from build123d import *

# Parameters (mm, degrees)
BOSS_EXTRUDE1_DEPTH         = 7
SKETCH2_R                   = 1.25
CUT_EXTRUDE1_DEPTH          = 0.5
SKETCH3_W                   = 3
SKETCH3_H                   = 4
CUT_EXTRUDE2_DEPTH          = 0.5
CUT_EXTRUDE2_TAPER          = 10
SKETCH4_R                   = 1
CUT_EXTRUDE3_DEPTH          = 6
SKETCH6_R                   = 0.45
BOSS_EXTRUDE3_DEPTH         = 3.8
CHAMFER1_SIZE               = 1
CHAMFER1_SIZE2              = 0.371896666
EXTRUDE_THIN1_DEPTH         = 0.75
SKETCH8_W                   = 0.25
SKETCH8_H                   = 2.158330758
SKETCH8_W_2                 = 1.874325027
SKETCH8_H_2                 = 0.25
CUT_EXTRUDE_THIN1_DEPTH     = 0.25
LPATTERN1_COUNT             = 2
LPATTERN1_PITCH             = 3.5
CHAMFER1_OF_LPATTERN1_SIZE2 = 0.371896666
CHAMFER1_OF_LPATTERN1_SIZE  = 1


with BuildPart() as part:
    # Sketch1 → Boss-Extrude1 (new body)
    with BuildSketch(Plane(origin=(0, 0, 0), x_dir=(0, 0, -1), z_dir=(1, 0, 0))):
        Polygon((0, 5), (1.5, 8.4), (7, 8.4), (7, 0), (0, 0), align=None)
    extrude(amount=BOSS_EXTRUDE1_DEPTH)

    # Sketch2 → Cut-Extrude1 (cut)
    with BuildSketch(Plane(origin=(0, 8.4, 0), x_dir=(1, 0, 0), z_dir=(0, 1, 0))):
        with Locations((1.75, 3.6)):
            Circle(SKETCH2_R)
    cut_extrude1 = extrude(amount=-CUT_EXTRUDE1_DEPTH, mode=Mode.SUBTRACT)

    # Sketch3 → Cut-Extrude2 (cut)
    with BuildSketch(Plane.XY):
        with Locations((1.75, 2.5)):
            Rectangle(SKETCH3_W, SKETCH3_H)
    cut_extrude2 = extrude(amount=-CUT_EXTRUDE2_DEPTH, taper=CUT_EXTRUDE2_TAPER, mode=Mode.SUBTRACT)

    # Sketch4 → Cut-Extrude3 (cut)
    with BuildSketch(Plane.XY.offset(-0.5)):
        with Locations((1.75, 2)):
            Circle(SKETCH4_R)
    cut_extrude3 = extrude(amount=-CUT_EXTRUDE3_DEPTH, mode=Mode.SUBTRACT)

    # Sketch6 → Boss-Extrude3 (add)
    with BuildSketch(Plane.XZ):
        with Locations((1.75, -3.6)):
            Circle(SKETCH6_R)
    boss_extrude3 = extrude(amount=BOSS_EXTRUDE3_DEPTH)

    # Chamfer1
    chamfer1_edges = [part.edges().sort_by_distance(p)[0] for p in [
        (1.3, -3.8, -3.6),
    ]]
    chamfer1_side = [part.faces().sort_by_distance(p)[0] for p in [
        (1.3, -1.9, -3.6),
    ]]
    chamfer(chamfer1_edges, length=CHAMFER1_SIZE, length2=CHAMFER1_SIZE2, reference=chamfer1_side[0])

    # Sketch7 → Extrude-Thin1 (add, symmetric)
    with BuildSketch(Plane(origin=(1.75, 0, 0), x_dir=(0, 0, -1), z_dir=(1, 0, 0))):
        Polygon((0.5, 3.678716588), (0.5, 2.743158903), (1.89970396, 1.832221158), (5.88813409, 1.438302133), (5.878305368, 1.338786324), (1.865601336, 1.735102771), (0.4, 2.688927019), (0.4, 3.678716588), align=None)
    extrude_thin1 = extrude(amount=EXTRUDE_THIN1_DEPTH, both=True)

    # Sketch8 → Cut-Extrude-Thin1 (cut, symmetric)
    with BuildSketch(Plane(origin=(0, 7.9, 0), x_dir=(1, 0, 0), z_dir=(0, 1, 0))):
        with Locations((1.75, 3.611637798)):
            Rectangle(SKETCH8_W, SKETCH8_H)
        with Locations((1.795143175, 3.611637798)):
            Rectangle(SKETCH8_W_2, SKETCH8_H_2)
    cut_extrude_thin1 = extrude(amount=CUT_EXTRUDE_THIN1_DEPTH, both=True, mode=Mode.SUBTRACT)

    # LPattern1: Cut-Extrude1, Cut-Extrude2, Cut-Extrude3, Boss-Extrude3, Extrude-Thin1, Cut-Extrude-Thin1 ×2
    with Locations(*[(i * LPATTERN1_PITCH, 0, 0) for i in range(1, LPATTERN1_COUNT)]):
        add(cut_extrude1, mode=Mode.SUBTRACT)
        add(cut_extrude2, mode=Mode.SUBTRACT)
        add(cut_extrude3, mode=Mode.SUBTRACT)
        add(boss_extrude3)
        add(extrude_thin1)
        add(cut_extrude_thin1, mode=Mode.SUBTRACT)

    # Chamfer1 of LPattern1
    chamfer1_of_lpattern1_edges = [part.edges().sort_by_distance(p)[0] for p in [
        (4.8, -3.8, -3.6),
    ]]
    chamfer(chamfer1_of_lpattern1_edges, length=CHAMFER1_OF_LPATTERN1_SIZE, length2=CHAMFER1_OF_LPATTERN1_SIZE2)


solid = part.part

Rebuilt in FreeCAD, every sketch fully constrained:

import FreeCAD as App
import Part
import Sketcher
Q = App.Units.Quantity


def edges_at(feature, points):
    """Names of the edges that pass closest to the given points."""
    edges = feature.Shape.Edges
    near = lambda p: min(range(len(edges)), key=lambda i: edges[i].distToShape(Part.Vertex(*p))[0])
    return sorted({f"Edge{near(p) + 1}" for p in points})


def add_polygon(sketch, points):
    """Adds a closed chain of lines whose ends are joined by coincident constraints."""
    first, n = sketch.GeometryCount, len(points)
    for a, b in zip(points, points[1:] + points[:1]):
        sketch.addGeometry(Part.LineSegment(App.Vector(*a, 0), App.Vector(*b, 0)), False)
    for i in range(n):
        sketch.addConstraint(Sketcher.Constraint("Coincident", first + i, 2, first + (i + 1) % n, 1))

doc = App.newDocument("Part")
body = doc.addObject("PartDesign::Body", "Body")

sketch1 = body.newObject("Sketcher::SketchObject", "Sketch")
sketch1.AttachmentSupport = (doc.getObject("YZ_Plane"), [""])
sketch1.MapMode = "FlatFace"
add_polygon(sketch1, [(8.4, -1.5), (5, 0), (0, 0), (0, -7), (8.4, -7)])
sketch1.addConstraint(Sketcher.Constraint("Horizontal", 1))
sketch1.addConstraint(Sketcher.Constraint("Vertical", 2))
sketch1.addConstraint(Sketcher.Constraint("Horizontal", 3))
sketch1.addConstraint(Sketcher.Constraint("Vertical", 4))
sketch1.addConstraint(Sketcher.Constraint("Coincident", 1, 2, -1, 1))
sketch1.addConstraint(Sketcher.Constraint("DistanceX", 1, 2, 1, 1, Q("5 mm")))
sketch1.addConstraint(Sketcher.Constraint("DistanceY", 2, 2, 2, 1, Q("7 mm")))
sketch1.addConstraint(Sketcher.Constraint("DistanceX", 3, 1, 3, 2, Q("8.4 mm")))
sketch1.addConstraint(Sketcher.Constraint("DistanceY", 4, 1, 4, 2, Q("5.5 mm")))
pad1 = body.newObject("PartDesign::Pad", "Pad")
pad1.Profile = sketch1
pad1.Length = 7

sketch2 = body.newObject("Sketcher::SketchObject", "Sketch001")
sketch2.AttachmentSupport = (doc.getObject("XZ_Plane"), [""])
sketch2.MapMode = "FlatFace"
sketch2.AttachmentOffset = App.Placement(App.Vector(0, 0, -8.4), App.Rotation())
sketch2.addGeometry(Part.Circle(App.Vector(1.8, -3.6, 0), App.Vector(0, 0, 1), 1.2), False)
sketch2.addConstraint(Sketcher.Constraint("Diameter", 0, Q("2.5 mm")))
sketch2.addConstraint(Sketcher.Constraint("DistanceY", 0, 3, -1, 1, Q("3.6 mm")))
sketch2.addConstraint(Sketcher.Constraint("DistanceX", -1, 1, 0, 3, Q("1.75 mm")))
pocket1 = body.newObject("PartDesign::Pocket", "Pocket")
pocket1.Profile = sketch2
pocket1.Length = 0.5
pocket1.Reversed = True

sketch3 = body.newObject("Sketcher::SketchObject", "Sketch002")
sketch3.AttachmentSupport = (doc.getObject("XY_Plane"), [""])
sketch3.MapMode = "FlatFace"
add_polygon(sketch3, [(0.2, 4.5), (0.2, 0.5), (3.2, 0.5), (3.2, 4.5)])
sketch3.addConstraint(Sketcher.Constraint("Vertical", 0))
sketch3.addConstraint(Sketcher.Constraint("Horizontal", 1))
sketch3.addConstraint(Sketcher.Constraint("Vertical", 2))
sketch3.addConstraint(Sketcher.Constraint("Horizontal", 3))
sketch3.addConstraint(Sketcher.Constraint("DistanceX", 1, 1, 1, 2, Q("3 mm")))
sketch3.addConstraint(Sketcher.Constraint("DistanceY", 0, 2, 0, 1, Q("4 mm")))
sketch3.addConstraint(Sketcher.Constraint("DistanceY", -1, 1, 0, 2, Q("0.5 mm")))
sketch3.addConstraint(Sketcher.Constraint("DistanceX", -1, 1, 0, 2, Q("0.25 mm")))
pocket2 = body.newObject("PartDesign::Pocket", "Pocket001")
pocket2.Profile = sketch3
pocket2.Length = 0.5
pocket2.TaperAngle = -10

sketch4 = body.newObject("Sketcher::SketchObject", "Sketch003")
sketch4.AttachmentSupport = (doc.getObject("XY_Plane"), [""])
sketch4.MapMode = "FlatFace"
sketch4.AttachmentOffset = App.Placement(App.Vector(0, 0, -0.5), App.Rotation())
sketch4.addGeometry(Part.Circle(App.Vector(1.8, 2, 0), App.Vector(0, 0, 1), 1), False)
sketch4.addConstraint(Sketcher.Constraint("Diameter", 0, Q("2 mm")))
sketch4.addConstraint(Sketcher.Constraint("DistanceY", -1, 1, 0, 3, Q("2 mm")))
sketch4.addConstraint(Sketcher.Constraint("DistanceX", -1, 1, 0, 3, Q("1.75 mm")))
pocket3 = body.newObject("PartDesign::Pocket", "Pocket002")
pocket3.Profile = sketch4
pocket3.Length = 6

sketch5 = body.newObject("Sketcher::SketchObject", "Sketch004")
sketch5.AttachmentSupport = (doc.getObject("XZ_Plane"), [""])
sketch5.MapMode = "FlatFace"
sketch5.addGeometry(Part.Circle(App.Vector(1.75, -3.6, 0), App.Vector(0, 0, 1), 0.45), False)
sketch5.addConstraint(Sketcher.Constraint("Diameter", 0, Q("0.9 mm")))
sketch5.addConstraint(Sketcher.Constraint("DistanceY", 0, 3, -1, 1, Q("3.6 mm")))
sketch5.addConstraint(Sketcher.Constraint("DistanceX", -1, 1, 0, 3, Q("1.75 mm")))
pad2 = body.newObject("PartDesign::Pad", "Pad001")
pad2.Profile = sketch5
pad2.Length = 3.8
doc.recompute()

chamfer = body.newObject("PartDesign::Chamfer", "Chamfer")
chamfer.Base = (pad2, edges_at(pad2, [(1.3, -3.8, -3.6)]))
chamfer.ChamferType = "Two distances"
chamfer.Size = 1
chamfer.Size2 = 0.371897

sketch6 = body.newObject("Sketcher::SketchObject", "Sketch005")
sketch6.AttachmentSupport = (doc.getObject("YZ_Plane"), [""])
sketch6.MapMode = "FlatFace"
sketch6.AttachmentOffset = App.Placement(App.Vector(0, 0, 1.75), App.Rotation())
add_polygon(sketch6, [(2.74, -0.5), (3.68, -0.5), (3.68, -0.4), (2.69, -0.4), (1.74, -1.87), (1.34, -5.88), (1.44, -5.89), (1.83, -1.9)])
sketch6.addConstraint(Sketcher.Constraint("Horizontal", 0))
sketch6.addConstraint(Sketcher.Constraint("Vertical", 1))
sketch6.addConstraint(Sketcher.Constraint("Horizontal", 2))
sketch6.addConstraint(Sketcher.Constraint("Perpendicular", 4, 5))
sketch6.addConstraint(Sketcher.Constraint("Perpendicular", 5, 6))
sketch6.addConstraint(Sketcher.Constraint("Parallel", 3, 7))
sketch6.addConstraint(Sketcher.Constraint("DistanceY", 1, 1, 1, 2, Q("0.1 mm")))
sketch6.addConstraint(Sketcher.Constraint("Distance", 5, Q("0.1 mm")))
sketch6.addConstraint(Sketcher.Constraint("DistanceY", 0, 2, -1, 1, Q("0.5 mm")))
sketch6.addConstraint(Sketcher.Constraint("DistanceX", 2, 2, 2, 1, Q("0.98979 mm")))
sketch6.addConstraint(Sketcher.Constraint("DistanceY", 3, 2, -1, 1, Q("1.865601 mm")))
sketch6.addConstraint(Sketcher.Constraint("DistanceX", 5, 2, 3, 2, Q("0.296801 mm")))
sketch6.addConstraint(Sketcher.Constraint("DistanceX", 0, 1, 0, 2, Q("0.935558 mm")))
sketch6.addConstraint(Sketcher.Constraint("DistanceX", -1, 1, 6, 2, Q("1.832221 mm")))
sketch6.addConstraint(Sketcher.Constraint("DistanceX", -1, 1, 7, 2, Q("2.743159 mm")))
sketch6.addConstraint(Sketcher.Constraint("DistanceY", 5, 2, 6, 2, Q("3.98843 mm")))
pad3 = body.newObject("PartDesign::Pad", "Pad002")
pad3.Profile = sketch6
pad3.Length = 1.5
pad3.Midplane = True

sketch7 = body.newObject("Sketcher::SketchObject", "Sketch006")
sketch7.AttachmentSupport = (doc.getObject("XZ_Plane"), [""])
sketch7.MapMode = "FlatFace"
sketch7.AttachmentOffset = App.Placement(App.Vector(0, 0, -7.9), App.Rotation())
add_polygon(sketch7, [(1.62, -3.49), (1.62, -2.53), (1.88, -2.53), (1.88, -3.49), (2.73, -3.49), (2.73, -3.74), (1.88, -3.74), (1.88, -4.69), (1.62, -4.69), (1.62, -3.74), (0.86, -3.74), (0.86, -3.49)])
sketch7.addConstraint(Sketcher.Constraint("Vertical", 0))
sketch7.addConstraint(Sketcher.Constraint("Horizontal", 1))
sketch7.addConstraint(Sketcher.Constraint("Vertical", 2))
sketch7.addConstraint(Sketcher.Constraint("Horizontal", 3))
sketch7.addConstraint(Sketcher.Constraint("Vertical", 4))
sketch7.addConstraint(Sketcher.Constraint("Horizontal", 5))
sketch7.addConstraint(Sketcher.Constraint("Vertical", 6))
sketch7.addConstraint(Sketcher.Constraint("Horizontal", 7))
sketch7.addConstraint(Sketcher.Constraint("Vertical", 8))
sketch7.addConstraint(Sketcher.Constraint("Horizontal", 9))
sketch7.addConstraint(Sketcher.Constraint("Vertical", 10))
sketch7.addConstraint(Sketcher.Constraint("Horizontal", 11))
sketch7.addConstraint(Sketcher.Constraint("Horizontal", 5, 2, 8, 2))
sketch7.addConstraint(Sketcher.Constraint("Horizontal", 3, 2, 10, 2))
sketch7.addConstraint(Sketcher.Constraint("Vertical", 2, 2, 5, 2))
sketch7.addConstraint(Sketcher.Constraint("Vertical", 0, 2, 7, 2))
sketch7.addConstraint(Sketcher.Constraint("Equal", 7, 4))
sketch7.addConstraint(Sketcher.Constraint("Equal", 2, 6))
sketch7.addConstraint(Sketcher.Constraint("DistanceX", 1, 1, 1, 2, Q("0.25 mm")))
sketch7.addConstraint(Sketcher.Constraint("DistanceX", -1, 1, 0, 2, Q("1.625 mm")))
sketch7.addConstraint(Sketcher.Constraint("DistanceX", 9, 2, 9, 1, Q("0.767019 mm")))
sketch7.addConstraint(Sketcher.Constraint("DistanceX", 3, 1, 3, 2, Q("0.857306 mm")))
sketch7.addConstraint(Sketcher.Constraint("DistanceY", 0, 1, 0, 2, Q("0.954165 mm")))
sketch7.addConstraint(Sketcher.Constraint("DistanceY", 0, 2, -1, 1, Q("2.532472 mm")))
pocket4 = body.newObject("PartDesign::Pocket", "Pocket003")
pocket4.Profile = sketch7
pocket4.Length = 0.5
pocket4.Midplane = True
doc.recompute()

linearpattern = body.newObject("PartDesign::LinearPattern", "LinearPattern")
linearpattern.Originals = [pocket1, pocket2, pocket3, pad2, pad3, pocket4]
linearpattern.Direction = (doc.getObject("X_Axis"), [""])
linearpattern.Mode = "offset"
linearpattern.Offset = 3.5
linearpattern.Occurrences = 2
body.Tip = linearpattern
doc.recompute()

chamfer2 = body.newObject("PartDesign::Chamfer", "Chamfer001")
chamfer2.Base = (linearpattern, edges_at(linearpattern, [(4.8, -3.8, -3.6)]))
chamfer2.ChamferType = "Two distances"
chamfer2.Size = 1
chamfer2.Size2 = 0.371897

doc.recompute()
